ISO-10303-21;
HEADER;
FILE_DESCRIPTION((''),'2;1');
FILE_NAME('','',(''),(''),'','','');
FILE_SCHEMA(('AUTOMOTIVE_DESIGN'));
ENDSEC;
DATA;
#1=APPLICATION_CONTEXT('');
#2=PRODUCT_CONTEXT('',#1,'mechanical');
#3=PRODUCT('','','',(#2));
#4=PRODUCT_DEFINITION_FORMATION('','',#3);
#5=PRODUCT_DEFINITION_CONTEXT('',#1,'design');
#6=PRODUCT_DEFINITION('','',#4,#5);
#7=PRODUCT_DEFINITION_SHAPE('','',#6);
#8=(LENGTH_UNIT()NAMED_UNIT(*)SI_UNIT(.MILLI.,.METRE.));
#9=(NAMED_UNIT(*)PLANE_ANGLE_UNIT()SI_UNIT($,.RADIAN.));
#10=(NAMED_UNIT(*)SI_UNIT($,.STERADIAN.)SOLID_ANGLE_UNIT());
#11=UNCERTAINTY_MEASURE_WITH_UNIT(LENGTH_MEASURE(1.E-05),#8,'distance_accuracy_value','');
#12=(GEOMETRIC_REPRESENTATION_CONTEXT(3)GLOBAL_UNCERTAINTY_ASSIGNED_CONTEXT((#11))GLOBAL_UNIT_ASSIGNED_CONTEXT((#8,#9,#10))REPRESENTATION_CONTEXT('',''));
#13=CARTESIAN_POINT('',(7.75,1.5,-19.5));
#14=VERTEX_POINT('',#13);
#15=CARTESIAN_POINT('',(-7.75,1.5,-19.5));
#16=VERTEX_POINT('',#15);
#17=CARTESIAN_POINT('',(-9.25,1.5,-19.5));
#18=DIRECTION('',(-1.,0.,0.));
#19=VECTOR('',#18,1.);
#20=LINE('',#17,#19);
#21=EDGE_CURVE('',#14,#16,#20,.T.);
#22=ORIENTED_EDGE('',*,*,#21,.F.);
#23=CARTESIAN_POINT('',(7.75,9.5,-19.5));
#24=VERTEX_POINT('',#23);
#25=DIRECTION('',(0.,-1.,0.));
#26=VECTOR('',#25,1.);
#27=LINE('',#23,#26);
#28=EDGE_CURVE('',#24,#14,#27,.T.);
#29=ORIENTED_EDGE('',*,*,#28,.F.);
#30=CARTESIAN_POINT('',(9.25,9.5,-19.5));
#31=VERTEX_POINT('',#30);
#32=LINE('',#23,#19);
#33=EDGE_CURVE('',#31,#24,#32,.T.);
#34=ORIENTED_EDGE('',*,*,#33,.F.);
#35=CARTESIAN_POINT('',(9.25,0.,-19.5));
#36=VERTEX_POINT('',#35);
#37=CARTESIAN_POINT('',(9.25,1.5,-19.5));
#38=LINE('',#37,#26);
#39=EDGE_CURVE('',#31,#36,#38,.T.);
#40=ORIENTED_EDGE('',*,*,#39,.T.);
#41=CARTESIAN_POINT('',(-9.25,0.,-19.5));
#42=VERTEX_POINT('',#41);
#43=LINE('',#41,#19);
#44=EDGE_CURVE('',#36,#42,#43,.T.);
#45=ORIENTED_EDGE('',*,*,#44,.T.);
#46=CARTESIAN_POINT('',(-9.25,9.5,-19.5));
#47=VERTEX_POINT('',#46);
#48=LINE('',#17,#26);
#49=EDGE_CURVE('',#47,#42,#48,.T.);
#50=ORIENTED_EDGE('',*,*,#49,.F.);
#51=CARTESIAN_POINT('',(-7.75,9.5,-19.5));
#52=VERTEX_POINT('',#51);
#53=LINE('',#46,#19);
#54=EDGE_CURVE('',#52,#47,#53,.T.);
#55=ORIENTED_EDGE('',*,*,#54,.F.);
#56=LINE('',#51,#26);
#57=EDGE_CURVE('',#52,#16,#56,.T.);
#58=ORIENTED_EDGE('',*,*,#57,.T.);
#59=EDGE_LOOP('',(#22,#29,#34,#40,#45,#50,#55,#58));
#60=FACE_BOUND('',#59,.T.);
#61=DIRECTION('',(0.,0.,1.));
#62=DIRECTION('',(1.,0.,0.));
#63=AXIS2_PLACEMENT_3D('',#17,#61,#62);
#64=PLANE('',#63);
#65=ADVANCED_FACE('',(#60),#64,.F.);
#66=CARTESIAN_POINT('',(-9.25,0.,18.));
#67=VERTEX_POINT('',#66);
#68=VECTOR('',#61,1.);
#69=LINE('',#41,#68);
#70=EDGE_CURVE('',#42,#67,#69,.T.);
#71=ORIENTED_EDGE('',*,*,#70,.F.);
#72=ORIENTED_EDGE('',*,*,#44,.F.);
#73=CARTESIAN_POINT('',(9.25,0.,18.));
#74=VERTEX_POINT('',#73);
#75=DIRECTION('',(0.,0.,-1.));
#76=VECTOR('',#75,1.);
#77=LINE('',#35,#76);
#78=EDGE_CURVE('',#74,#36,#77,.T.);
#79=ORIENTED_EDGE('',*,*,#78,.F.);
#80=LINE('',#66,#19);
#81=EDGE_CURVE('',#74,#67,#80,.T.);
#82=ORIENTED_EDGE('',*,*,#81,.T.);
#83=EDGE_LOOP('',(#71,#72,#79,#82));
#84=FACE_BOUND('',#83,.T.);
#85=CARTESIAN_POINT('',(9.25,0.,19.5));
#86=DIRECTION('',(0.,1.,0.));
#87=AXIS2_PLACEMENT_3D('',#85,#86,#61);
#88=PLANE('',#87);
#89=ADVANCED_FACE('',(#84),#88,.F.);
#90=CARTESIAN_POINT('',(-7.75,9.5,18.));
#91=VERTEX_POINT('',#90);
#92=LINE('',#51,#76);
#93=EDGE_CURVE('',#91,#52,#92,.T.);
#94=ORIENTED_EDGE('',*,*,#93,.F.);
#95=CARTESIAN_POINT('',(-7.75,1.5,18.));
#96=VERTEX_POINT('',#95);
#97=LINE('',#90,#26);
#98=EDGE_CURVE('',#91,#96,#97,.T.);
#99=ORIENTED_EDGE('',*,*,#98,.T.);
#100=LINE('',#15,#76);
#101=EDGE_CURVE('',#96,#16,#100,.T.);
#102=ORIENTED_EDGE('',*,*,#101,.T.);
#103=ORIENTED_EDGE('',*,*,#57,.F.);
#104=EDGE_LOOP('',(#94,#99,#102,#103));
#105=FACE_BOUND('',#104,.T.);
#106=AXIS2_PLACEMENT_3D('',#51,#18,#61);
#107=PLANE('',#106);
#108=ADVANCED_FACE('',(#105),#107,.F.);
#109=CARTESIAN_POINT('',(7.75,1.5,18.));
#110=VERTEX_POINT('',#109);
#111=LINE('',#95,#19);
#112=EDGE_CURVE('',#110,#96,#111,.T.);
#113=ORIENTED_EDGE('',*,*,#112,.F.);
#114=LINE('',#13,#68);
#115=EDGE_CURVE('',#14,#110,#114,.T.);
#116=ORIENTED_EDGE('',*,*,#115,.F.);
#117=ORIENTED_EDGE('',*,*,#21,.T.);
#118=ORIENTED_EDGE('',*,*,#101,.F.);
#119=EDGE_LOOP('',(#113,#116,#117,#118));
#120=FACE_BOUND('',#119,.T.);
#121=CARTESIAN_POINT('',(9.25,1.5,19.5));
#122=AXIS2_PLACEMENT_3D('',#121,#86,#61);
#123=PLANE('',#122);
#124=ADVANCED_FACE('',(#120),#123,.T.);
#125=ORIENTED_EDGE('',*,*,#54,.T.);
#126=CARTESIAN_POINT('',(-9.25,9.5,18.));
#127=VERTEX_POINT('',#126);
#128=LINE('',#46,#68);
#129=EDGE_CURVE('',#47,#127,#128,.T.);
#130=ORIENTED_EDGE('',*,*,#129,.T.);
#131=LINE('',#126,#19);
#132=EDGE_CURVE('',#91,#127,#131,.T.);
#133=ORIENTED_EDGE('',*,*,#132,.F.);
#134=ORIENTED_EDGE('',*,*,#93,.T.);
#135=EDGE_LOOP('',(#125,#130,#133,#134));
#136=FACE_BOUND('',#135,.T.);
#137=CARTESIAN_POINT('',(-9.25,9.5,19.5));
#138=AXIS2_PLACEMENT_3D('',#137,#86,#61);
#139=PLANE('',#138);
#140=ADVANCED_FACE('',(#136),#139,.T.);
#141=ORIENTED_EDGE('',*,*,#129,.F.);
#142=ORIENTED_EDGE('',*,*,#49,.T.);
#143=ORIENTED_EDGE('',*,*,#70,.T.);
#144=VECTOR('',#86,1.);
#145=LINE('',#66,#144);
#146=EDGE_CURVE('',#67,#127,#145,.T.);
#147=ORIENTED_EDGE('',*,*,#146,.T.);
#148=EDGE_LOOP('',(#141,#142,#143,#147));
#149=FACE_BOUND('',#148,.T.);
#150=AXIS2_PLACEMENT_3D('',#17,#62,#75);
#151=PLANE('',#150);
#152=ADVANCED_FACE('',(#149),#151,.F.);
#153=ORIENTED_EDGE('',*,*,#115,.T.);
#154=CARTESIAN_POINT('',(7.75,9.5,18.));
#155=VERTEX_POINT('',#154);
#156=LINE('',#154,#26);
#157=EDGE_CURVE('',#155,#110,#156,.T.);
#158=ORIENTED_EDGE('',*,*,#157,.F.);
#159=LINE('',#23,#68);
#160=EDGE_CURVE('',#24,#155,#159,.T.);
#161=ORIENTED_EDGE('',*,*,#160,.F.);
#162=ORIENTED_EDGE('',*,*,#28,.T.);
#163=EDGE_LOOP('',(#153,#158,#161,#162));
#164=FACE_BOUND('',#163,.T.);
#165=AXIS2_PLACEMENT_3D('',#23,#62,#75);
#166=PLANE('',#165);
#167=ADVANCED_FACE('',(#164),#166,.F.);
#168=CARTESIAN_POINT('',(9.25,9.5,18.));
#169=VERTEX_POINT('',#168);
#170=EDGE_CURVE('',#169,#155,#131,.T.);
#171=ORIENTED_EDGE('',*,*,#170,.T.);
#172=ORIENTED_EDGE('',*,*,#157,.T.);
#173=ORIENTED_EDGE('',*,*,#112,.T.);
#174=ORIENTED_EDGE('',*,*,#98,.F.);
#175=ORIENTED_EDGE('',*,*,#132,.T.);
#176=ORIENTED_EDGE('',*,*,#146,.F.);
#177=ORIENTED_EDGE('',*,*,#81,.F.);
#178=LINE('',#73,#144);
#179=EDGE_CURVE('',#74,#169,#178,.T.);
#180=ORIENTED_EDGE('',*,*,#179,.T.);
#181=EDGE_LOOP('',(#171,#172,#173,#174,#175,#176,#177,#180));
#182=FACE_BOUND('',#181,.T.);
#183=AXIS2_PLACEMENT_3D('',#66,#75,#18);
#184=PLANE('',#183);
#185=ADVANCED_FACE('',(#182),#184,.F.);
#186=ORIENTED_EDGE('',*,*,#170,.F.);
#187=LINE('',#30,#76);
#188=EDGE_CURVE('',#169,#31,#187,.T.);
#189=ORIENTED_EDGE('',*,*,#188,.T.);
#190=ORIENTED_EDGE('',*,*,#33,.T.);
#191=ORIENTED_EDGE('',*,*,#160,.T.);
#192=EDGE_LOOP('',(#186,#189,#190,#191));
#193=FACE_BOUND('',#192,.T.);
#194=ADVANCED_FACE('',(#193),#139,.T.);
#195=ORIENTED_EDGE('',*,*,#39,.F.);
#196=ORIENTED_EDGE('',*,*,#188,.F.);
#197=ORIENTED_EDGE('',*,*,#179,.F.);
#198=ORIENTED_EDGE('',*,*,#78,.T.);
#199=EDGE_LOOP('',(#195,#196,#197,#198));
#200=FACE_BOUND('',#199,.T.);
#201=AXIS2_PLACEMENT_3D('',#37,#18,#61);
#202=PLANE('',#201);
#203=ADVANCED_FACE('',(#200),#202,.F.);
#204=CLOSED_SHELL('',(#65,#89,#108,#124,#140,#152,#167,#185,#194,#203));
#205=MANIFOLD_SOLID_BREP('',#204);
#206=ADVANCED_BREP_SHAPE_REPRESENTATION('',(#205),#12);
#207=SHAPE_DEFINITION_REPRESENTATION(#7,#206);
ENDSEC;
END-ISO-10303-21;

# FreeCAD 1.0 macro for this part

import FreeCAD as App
import Part
import Sketcher

V = App.Vector


def add_polygon(sketch, points):
    """Adds a closed chain of lines whose ends are joined by coincident constraints."""
    first, n = sketch.GeometryCount, len(points)
    for a, b in zip(points, points[1:] + points[:1]):
        sketch.addGeometry(Part.LineSegment(App.Vector(*a, 0), App.Vector(*b, 0)), False)
    for i in range(n):
        sketch.addConstraint(Sketcher.Constraint("Coincident", first + i, 2, first + (i + 1) % n, 1))

doc = App.newDocument("Part")
body = doc.addObject("PartDesign::Body", "Body")

# Sketch on XZ plane
sketch1 = body.newObject("Sketcher::SketchObject", "Sketch")
sketch1.AttachmentSupport = (doc.getObject("XZ_Plane"), [""])
sketch1.MapMode = "FlatFace"
add_polygon(sketch1, [(-9, -20), (-9, 20), (9, 20), (9, -20)])  # lines 0-3
sketch1.addConstraint([
    Sketcher.Constraint("Vertical", 0),
    Sketcher.Constraint("Horizontal", 1),
    Sketcher.Constraint("Vertical", 2),
    Sketcher.Constraint("Horizontal", 3),
    Sketcher.Constraint("Symmetric", 0, 2, 2, 2, -1, 1),
    Sketcher.Constraint("DistanceY", 0, 1, 0, 2, 39.0),
    Sketcher.Constraint("DistanceX", 1, 1, 1, 2, 18.5),
])
pad1 = body.newObject("PartDesign::Pad", "Pad")
pad1.Profile = sketch1
pad1.Length = 1.5
pad1.Reversed = True

# Sketch on XZ plane
sketch2 = body.newObject("Sketcher::SketchObject", "Sketch001")
sketch2.AttachmentSupport = (doc.getObject("XZ_Plane"), [""])
sketch2.MapMode = "FlatFace"
sketch2.AttachmentOffset = App.Placement(V(0, 0, -1.5), App.Rotation())
add_polygon(sketch2, [(9.2, -19.5), (7.8, -19.5), (7.8, 18), (-7.8, 18), (-7.8, -19.5), (-9.2, -19.5), (-9.2, 19.5), (9.2, 19.5)])  # lines 0-7
sketch2.addConstraint([
    Sketcher.Constraint("Horizontal", 0),
    Sketcher.Constraint("Vertical", 1),
    Sketcher.Constraint("Horizontal", 2),
    Sketcher.Constraint("Vertical", 3),
    Sketcher.Constraint("Horizontal", 4),
    Sketcher.Constraint("Vertical", 5),
    Sketcher.Constraint("Horizontal", 6),
    Sketcher.Constraint("Vertical", 7),
    Sketcher.Constraint("Symmetric", 4, 2, 6, 2, -1, 1),
    Sketcher.Constraint("Symmetric", 0, 2, 3, 2, -2),
    Sketcher.Constraint("DistanceY", 5, 1, 5, 2, 39.0),
    Sketcher.Constraint("DistanceX", 0, 2, 0, 1, 1.5),
    Sketcher.Constraint("DistanceX", 2, 2, 2, 1, 15.5),
    Sketcher.Constraint("DistanceY", 1, 1, 1, 2, 37.5),
])
pad2 = body.newObject("PartDesign::Pad", "Pad001")
pad2.Profile = sketch2
pad2.Length = 8
pad2.Reversed = True

# Sketch on XZ plane
sketch3 = body.newObject("Sketcher::SketchObject", "Sketch002")
sketch3.AttachmentSupport = (doc.getObject("XZ_Plane"), [""])
sketch3.MapMode = "FlatFace"
sketch3.AttachmentOffset = App.Placement(V(0, 0, -9.5), App.Rotation())
add_polygon(sketch3, [(-9.2, 18), (-9.2, 19.5), (9.2, 19.5), (9.2, 18)])  # lines 0-3
sketch3.addConstraint([
    Sketcher.Constraint("Vertical", 0),
    Sketcher.Constraint("Horizontal", 1),
    Sketcher.Constraint("Vertical", 2),
    Sketcher.Constraint("Horizontal", 3),
    Sketcher.Constraint("DistanceX", 1, 1, 1, 2, 18.5),
    Sketcher.Constraint("DistanceY", 0, 1, 0, 2, 1.5),
    Sketcher.Constraint("DistanceY", -1, 1, 2, 2, 18.0),
    Sketcher.Constraint("DistanceX", 0, 2, -1, 1, 9.25),
])
pocket1 = body.newObject("PartDesign::Pocket", "Pocket")
pocket1.Profile = sketch3
pocket1.Type = "ThroughAll"
pocket1.Reversed = True

doc.recompute()
